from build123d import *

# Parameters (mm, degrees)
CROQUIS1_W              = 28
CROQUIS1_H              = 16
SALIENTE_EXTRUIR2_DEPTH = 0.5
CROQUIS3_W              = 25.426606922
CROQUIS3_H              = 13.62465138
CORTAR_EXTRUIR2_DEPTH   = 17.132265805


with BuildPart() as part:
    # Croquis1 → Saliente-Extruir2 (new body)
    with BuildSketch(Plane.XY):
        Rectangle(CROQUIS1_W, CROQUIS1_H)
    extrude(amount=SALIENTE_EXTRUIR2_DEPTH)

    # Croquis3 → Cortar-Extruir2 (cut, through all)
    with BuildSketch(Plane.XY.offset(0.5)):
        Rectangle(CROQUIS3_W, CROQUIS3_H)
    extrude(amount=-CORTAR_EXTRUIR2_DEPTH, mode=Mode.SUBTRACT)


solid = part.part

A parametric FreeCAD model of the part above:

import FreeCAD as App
import Part
import Sketcher

V = App.Vector
Q = App.Units.Quantity


def add_polygon(sketch, points):
    """Adds a closed chain of lines whose ends are joined by coincident constraints."""
    first, n = sketch.GeometryCount, len(points)
    for a, b in zip(points, points[1:] + points[:1]):
        sketch.addGeometry(Part.LineSegment(App.Vector(*a, 0), App.Vector(*b, 0)), False)
    for i in range(n):
        sketch.addConstraint(Sketcher.Constraint("Coincident", first + i, 2, first + (i + 1) % n, 1))

doc = App.newDocument("Part")
body = doc.addObject("PartDesign::Body", "Body")

# Sketch on XY plane
sketch1 = body.newObject("Sketcher::SketchObject", "Sketch")
sketch1.AttachmentSupport = (doc.getObject("XY_Plane"), [""])
sketch1.MapMode = "FlatFace"
add_polygon(sketch1, [(-14, 8), (-14, -8), (14, -8), (14, 8)])  # lines 0-3
sketch1.addConstraint([
    Sketcher.Constraint("Vertical", 0),
    Sketcher.Constraint("Horizontal", 1),
    Sketcher.Constraint("Vertical", 2),
    Sketcher.Constraint("Horizontal", 3),
    Sketcher.Constraint("Symmetric", 0, 2, 2, 2, -1, 1),
    Sketcher.Constraint("DistanceX", 1, 1, 1, 2, Q("28 mm")),
    Sketcher.Constraint("DistanceY", 0, 2, 0, 1, Q("16 mm")),
])
pad1 = body.newObject("PartDesign::Pad", "Pad")
pad1.Profile = sketch1
pad1.Length = 0.5

# Sketch on XY plane
sketch2 = body.newObject("Sketcher::SketchObject", "Sketch001")
sketch2.AttachmentSupport = (doc.getObject("XY_Plane"), [""])
sketch2.MapMode = "FlatFace"
sketch2.AttachmentOffset = App.Placement(V(0, 0, 0.5), App.Rotation())
add_polygon(sketch2, [(-13, 7), (-13, -7), (13, -7), (13, 7)])  # lines 0-3
sketch2.addConstraint([
    Sketcher.Constraint("Vertical", 0),
    Sketcher.Constraint("Horizontal", 1),
    Sketcher.Constraint("Vertical", 2),
    Sketcher.Constraint("Horizontal", 3),
    Sketcher.Constraint("Symmetric", 0, 2, 2, 2, -1, 1),
    Sketcher.Constraint("DistanceY", 0, 2, 0, 1, Q("13.624651 mm")),
    Sketcher.Constraint("DistanceX", 1, 1, 1, 2, Q("25.426607 mm")),
])
pocket1 = body.newObject("PartDesign::Pocket", "Pocket")
pocket1.Profile = sketch2
pocket1.Type = "ThroughAll"

doc.recompute()
